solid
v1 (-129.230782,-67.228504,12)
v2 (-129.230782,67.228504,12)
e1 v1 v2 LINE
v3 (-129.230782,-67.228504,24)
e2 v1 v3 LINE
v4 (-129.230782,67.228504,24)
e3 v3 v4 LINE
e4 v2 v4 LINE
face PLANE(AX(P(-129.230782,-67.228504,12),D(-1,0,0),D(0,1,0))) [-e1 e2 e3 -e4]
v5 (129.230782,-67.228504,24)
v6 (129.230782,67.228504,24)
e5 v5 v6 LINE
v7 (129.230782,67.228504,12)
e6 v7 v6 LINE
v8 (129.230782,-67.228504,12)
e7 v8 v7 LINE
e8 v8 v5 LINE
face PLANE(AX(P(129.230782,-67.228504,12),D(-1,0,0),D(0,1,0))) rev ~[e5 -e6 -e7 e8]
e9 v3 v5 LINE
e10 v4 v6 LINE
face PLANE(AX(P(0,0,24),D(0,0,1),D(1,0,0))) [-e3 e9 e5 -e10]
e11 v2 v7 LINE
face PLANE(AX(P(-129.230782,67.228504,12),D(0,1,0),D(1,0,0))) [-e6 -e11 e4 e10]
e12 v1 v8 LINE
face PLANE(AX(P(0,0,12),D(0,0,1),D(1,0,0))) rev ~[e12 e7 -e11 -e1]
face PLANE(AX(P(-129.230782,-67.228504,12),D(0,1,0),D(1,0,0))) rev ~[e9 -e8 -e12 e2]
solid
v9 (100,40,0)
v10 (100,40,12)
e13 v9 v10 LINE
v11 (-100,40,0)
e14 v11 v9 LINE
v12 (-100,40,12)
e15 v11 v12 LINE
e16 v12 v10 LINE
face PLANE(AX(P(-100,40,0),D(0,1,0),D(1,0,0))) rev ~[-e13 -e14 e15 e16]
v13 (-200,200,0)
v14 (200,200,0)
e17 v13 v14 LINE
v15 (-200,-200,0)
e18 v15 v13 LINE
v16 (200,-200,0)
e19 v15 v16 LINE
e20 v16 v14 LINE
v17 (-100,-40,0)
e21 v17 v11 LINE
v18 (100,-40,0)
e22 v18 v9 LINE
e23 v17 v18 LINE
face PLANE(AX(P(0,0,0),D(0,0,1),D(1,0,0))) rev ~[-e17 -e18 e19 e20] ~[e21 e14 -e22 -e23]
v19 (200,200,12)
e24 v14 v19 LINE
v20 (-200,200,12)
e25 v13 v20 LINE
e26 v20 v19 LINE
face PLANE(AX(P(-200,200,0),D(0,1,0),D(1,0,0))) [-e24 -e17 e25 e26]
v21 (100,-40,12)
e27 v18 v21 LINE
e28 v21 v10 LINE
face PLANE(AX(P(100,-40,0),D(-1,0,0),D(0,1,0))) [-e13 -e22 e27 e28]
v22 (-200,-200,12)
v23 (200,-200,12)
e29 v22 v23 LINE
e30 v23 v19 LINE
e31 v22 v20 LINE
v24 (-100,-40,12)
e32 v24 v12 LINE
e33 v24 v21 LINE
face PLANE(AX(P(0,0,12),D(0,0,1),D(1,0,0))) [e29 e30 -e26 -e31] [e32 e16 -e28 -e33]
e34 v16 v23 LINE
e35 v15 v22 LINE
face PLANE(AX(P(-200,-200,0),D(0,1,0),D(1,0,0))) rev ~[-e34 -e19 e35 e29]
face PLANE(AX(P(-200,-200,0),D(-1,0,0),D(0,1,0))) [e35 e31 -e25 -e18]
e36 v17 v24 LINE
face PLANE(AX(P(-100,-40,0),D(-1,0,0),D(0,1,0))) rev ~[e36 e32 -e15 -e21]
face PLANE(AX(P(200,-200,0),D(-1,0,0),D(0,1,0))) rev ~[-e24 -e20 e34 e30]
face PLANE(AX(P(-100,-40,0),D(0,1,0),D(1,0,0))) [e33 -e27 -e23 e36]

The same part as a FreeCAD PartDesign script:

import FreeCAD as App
import Part
import Sketcher
from FreeCAD import Vector
Q = App.Units.Quantity

doc = App.newDocument("Part")
body = doc.addObject("PartDesign::Body", "Body")

sketch1 = body.newObject("Sketcher::SketchObject", "Sketch")
sketch1.AttachmentSupport = (doc.getObject("XY_Plane"), [""])
sketch1.MapMode = "FlatFace"
sketch1.addGeometry([
    Part.LineSegment(Vector(-200, 200, 0), Vector(-200, -200, 0)),
    Part.LineSegment(Vector(-200, -200, 0), Vector(200, -200, 0)),
    Part.LineSegment(Vector(200, -200, 0), Vector(200, 200, 0)),
    Part.LineSegment(Vector(200, 200, 0), Vector(-200, 200, 0)),
    Part.LineSegment(Vector(100, -40, 0), Vector(-100, -40, 0)),
    Part.LineSegment(Vector(-100, -40, 0), Vector(-100, 40, 0)),
    Part.LineSegment(Vector(-100, 40, 0), Vector(100, 40, 0)),
    Part.LineSegment(Vector(100, 40, 0), Vector(100, -40, 0)),
], False)
sketch1.addConstraint([
    Sketcher.Constraint("Coincident", 0, 2, 1, 1),
    Sketcher.Constraint("Coincident", 1, 2, 2, 1),
    Sketcher.Constraint("Coincident", 2, 2, 3, 1),
    Sketcher.Constraint("Coincident", 3, 2, 0, 1),
    Sketcher.Constraint("Coincident", 4, 2, 5, 1),
    Sketcher.Constraint("Coincident", 5, 2, 6, 1),
    Sketcher.Constraint("Coincident", 6, 2, 7, 1),
    Sketcher.Constraint("Coincident", 7, 2, 4, 1),
    Sketcher.Constraint("Vertical", 0),
    Sketcher.Constraint("Horizontal", 1),
    Sketcher.Constraint("Vertical", 2),
    Sketcher.Constraint("Horizontal", 3),
    Sketcher.Constraint("Horizontal", 4),
    Sketcher.Constraint("Vertical", 5),
    Sketcher.Constraint("Horizontal", 6),
    Sketcher.Constraint("Vertical", 7),
    Sketcher.Constraint("Symmetric", 0, 2, 2, 2, -1, 1),
    Sketcher.Constraint("Symmetric", 4, 2, 6, 2, -1, 1),
    Sketcher.Constraint("Equal", 3, 0),
    Sketcher.Constraint("DistanceX", 1, 1, 1, 2, Q("400 mm")),
    Sketcher.Constraint("DistanceX", 4, 2, 4, 1, Q("200 mm")),
    Sketcher.Constraint("DistanceY", 5, 1, 5, 2, Q("80 mm")),
])
pad1 = body.newObject("PartDesign::Pad", "Pad")
pad1.Profile = sketch1
pad1.Length = 12
body2 = doc.addObject("PartDesign::Body", "Body001")

sketch2 = body2.newObject("Sketcher::SketchObject", "Sketch001")
sketch2.AttachmentSupport = (doc.getObject("XY_Plane001"), [""])
sketch2.MapMode = "FlatFace"
sketch2.AttachmentOffset = App.Placement(Vector(0, 0, 12), App.Rotation())
sketch2.addGeometry([
    Part.LineSegment(Vector(-129, 67, 0), Vector(-129, -67, 0)),
    Part.LineSegment(Vector(-129, -67, 0), Vector(129, -67, 0)),
    Part.LineSegment(Vector(129, -67, 0), Vector(129, 67, 0)),
    Part.LineSegment(Vector(129, 67, 0), Vector(-129, 67, 0)),
], False)
sketch2.addConstraint([
    Sketcher.Constraint("Coincident", 0, 2, 1, 1),
    Sketcher.Constraint("Coincident", 1, 2, 2, 1),
    Sketcher.Constraint("Coincident", 2, 2, 3, 1),
    Sketcher.Constraint("Coincident", 3, 2, 0, 1),
    Sketcher.Constraint("Vertical", 0),
    Sketcher.Constraint("Horizontal", 1),
    Sketcher.Constraint("Vertical", 2),
    Sketcher.Constraint("Horizontal", 3),
    Sketcher.Constraint("Symmetric", 0, 2, 2, 2, -1, 1),
    Sketcher.Constraint("DistanceX", 1, 1, 1, 2, Q("258.461565 mm")),
    Sketcher.Constraint("DistanceY", 0, 2, 0, 1, Q("134.457007 mm")),
])
pad2 = body2.newObject("PartDesign::Pad", "Pad001")
pad2.Profile = sketch2
pad2.Length = 12

doc.recompute()
